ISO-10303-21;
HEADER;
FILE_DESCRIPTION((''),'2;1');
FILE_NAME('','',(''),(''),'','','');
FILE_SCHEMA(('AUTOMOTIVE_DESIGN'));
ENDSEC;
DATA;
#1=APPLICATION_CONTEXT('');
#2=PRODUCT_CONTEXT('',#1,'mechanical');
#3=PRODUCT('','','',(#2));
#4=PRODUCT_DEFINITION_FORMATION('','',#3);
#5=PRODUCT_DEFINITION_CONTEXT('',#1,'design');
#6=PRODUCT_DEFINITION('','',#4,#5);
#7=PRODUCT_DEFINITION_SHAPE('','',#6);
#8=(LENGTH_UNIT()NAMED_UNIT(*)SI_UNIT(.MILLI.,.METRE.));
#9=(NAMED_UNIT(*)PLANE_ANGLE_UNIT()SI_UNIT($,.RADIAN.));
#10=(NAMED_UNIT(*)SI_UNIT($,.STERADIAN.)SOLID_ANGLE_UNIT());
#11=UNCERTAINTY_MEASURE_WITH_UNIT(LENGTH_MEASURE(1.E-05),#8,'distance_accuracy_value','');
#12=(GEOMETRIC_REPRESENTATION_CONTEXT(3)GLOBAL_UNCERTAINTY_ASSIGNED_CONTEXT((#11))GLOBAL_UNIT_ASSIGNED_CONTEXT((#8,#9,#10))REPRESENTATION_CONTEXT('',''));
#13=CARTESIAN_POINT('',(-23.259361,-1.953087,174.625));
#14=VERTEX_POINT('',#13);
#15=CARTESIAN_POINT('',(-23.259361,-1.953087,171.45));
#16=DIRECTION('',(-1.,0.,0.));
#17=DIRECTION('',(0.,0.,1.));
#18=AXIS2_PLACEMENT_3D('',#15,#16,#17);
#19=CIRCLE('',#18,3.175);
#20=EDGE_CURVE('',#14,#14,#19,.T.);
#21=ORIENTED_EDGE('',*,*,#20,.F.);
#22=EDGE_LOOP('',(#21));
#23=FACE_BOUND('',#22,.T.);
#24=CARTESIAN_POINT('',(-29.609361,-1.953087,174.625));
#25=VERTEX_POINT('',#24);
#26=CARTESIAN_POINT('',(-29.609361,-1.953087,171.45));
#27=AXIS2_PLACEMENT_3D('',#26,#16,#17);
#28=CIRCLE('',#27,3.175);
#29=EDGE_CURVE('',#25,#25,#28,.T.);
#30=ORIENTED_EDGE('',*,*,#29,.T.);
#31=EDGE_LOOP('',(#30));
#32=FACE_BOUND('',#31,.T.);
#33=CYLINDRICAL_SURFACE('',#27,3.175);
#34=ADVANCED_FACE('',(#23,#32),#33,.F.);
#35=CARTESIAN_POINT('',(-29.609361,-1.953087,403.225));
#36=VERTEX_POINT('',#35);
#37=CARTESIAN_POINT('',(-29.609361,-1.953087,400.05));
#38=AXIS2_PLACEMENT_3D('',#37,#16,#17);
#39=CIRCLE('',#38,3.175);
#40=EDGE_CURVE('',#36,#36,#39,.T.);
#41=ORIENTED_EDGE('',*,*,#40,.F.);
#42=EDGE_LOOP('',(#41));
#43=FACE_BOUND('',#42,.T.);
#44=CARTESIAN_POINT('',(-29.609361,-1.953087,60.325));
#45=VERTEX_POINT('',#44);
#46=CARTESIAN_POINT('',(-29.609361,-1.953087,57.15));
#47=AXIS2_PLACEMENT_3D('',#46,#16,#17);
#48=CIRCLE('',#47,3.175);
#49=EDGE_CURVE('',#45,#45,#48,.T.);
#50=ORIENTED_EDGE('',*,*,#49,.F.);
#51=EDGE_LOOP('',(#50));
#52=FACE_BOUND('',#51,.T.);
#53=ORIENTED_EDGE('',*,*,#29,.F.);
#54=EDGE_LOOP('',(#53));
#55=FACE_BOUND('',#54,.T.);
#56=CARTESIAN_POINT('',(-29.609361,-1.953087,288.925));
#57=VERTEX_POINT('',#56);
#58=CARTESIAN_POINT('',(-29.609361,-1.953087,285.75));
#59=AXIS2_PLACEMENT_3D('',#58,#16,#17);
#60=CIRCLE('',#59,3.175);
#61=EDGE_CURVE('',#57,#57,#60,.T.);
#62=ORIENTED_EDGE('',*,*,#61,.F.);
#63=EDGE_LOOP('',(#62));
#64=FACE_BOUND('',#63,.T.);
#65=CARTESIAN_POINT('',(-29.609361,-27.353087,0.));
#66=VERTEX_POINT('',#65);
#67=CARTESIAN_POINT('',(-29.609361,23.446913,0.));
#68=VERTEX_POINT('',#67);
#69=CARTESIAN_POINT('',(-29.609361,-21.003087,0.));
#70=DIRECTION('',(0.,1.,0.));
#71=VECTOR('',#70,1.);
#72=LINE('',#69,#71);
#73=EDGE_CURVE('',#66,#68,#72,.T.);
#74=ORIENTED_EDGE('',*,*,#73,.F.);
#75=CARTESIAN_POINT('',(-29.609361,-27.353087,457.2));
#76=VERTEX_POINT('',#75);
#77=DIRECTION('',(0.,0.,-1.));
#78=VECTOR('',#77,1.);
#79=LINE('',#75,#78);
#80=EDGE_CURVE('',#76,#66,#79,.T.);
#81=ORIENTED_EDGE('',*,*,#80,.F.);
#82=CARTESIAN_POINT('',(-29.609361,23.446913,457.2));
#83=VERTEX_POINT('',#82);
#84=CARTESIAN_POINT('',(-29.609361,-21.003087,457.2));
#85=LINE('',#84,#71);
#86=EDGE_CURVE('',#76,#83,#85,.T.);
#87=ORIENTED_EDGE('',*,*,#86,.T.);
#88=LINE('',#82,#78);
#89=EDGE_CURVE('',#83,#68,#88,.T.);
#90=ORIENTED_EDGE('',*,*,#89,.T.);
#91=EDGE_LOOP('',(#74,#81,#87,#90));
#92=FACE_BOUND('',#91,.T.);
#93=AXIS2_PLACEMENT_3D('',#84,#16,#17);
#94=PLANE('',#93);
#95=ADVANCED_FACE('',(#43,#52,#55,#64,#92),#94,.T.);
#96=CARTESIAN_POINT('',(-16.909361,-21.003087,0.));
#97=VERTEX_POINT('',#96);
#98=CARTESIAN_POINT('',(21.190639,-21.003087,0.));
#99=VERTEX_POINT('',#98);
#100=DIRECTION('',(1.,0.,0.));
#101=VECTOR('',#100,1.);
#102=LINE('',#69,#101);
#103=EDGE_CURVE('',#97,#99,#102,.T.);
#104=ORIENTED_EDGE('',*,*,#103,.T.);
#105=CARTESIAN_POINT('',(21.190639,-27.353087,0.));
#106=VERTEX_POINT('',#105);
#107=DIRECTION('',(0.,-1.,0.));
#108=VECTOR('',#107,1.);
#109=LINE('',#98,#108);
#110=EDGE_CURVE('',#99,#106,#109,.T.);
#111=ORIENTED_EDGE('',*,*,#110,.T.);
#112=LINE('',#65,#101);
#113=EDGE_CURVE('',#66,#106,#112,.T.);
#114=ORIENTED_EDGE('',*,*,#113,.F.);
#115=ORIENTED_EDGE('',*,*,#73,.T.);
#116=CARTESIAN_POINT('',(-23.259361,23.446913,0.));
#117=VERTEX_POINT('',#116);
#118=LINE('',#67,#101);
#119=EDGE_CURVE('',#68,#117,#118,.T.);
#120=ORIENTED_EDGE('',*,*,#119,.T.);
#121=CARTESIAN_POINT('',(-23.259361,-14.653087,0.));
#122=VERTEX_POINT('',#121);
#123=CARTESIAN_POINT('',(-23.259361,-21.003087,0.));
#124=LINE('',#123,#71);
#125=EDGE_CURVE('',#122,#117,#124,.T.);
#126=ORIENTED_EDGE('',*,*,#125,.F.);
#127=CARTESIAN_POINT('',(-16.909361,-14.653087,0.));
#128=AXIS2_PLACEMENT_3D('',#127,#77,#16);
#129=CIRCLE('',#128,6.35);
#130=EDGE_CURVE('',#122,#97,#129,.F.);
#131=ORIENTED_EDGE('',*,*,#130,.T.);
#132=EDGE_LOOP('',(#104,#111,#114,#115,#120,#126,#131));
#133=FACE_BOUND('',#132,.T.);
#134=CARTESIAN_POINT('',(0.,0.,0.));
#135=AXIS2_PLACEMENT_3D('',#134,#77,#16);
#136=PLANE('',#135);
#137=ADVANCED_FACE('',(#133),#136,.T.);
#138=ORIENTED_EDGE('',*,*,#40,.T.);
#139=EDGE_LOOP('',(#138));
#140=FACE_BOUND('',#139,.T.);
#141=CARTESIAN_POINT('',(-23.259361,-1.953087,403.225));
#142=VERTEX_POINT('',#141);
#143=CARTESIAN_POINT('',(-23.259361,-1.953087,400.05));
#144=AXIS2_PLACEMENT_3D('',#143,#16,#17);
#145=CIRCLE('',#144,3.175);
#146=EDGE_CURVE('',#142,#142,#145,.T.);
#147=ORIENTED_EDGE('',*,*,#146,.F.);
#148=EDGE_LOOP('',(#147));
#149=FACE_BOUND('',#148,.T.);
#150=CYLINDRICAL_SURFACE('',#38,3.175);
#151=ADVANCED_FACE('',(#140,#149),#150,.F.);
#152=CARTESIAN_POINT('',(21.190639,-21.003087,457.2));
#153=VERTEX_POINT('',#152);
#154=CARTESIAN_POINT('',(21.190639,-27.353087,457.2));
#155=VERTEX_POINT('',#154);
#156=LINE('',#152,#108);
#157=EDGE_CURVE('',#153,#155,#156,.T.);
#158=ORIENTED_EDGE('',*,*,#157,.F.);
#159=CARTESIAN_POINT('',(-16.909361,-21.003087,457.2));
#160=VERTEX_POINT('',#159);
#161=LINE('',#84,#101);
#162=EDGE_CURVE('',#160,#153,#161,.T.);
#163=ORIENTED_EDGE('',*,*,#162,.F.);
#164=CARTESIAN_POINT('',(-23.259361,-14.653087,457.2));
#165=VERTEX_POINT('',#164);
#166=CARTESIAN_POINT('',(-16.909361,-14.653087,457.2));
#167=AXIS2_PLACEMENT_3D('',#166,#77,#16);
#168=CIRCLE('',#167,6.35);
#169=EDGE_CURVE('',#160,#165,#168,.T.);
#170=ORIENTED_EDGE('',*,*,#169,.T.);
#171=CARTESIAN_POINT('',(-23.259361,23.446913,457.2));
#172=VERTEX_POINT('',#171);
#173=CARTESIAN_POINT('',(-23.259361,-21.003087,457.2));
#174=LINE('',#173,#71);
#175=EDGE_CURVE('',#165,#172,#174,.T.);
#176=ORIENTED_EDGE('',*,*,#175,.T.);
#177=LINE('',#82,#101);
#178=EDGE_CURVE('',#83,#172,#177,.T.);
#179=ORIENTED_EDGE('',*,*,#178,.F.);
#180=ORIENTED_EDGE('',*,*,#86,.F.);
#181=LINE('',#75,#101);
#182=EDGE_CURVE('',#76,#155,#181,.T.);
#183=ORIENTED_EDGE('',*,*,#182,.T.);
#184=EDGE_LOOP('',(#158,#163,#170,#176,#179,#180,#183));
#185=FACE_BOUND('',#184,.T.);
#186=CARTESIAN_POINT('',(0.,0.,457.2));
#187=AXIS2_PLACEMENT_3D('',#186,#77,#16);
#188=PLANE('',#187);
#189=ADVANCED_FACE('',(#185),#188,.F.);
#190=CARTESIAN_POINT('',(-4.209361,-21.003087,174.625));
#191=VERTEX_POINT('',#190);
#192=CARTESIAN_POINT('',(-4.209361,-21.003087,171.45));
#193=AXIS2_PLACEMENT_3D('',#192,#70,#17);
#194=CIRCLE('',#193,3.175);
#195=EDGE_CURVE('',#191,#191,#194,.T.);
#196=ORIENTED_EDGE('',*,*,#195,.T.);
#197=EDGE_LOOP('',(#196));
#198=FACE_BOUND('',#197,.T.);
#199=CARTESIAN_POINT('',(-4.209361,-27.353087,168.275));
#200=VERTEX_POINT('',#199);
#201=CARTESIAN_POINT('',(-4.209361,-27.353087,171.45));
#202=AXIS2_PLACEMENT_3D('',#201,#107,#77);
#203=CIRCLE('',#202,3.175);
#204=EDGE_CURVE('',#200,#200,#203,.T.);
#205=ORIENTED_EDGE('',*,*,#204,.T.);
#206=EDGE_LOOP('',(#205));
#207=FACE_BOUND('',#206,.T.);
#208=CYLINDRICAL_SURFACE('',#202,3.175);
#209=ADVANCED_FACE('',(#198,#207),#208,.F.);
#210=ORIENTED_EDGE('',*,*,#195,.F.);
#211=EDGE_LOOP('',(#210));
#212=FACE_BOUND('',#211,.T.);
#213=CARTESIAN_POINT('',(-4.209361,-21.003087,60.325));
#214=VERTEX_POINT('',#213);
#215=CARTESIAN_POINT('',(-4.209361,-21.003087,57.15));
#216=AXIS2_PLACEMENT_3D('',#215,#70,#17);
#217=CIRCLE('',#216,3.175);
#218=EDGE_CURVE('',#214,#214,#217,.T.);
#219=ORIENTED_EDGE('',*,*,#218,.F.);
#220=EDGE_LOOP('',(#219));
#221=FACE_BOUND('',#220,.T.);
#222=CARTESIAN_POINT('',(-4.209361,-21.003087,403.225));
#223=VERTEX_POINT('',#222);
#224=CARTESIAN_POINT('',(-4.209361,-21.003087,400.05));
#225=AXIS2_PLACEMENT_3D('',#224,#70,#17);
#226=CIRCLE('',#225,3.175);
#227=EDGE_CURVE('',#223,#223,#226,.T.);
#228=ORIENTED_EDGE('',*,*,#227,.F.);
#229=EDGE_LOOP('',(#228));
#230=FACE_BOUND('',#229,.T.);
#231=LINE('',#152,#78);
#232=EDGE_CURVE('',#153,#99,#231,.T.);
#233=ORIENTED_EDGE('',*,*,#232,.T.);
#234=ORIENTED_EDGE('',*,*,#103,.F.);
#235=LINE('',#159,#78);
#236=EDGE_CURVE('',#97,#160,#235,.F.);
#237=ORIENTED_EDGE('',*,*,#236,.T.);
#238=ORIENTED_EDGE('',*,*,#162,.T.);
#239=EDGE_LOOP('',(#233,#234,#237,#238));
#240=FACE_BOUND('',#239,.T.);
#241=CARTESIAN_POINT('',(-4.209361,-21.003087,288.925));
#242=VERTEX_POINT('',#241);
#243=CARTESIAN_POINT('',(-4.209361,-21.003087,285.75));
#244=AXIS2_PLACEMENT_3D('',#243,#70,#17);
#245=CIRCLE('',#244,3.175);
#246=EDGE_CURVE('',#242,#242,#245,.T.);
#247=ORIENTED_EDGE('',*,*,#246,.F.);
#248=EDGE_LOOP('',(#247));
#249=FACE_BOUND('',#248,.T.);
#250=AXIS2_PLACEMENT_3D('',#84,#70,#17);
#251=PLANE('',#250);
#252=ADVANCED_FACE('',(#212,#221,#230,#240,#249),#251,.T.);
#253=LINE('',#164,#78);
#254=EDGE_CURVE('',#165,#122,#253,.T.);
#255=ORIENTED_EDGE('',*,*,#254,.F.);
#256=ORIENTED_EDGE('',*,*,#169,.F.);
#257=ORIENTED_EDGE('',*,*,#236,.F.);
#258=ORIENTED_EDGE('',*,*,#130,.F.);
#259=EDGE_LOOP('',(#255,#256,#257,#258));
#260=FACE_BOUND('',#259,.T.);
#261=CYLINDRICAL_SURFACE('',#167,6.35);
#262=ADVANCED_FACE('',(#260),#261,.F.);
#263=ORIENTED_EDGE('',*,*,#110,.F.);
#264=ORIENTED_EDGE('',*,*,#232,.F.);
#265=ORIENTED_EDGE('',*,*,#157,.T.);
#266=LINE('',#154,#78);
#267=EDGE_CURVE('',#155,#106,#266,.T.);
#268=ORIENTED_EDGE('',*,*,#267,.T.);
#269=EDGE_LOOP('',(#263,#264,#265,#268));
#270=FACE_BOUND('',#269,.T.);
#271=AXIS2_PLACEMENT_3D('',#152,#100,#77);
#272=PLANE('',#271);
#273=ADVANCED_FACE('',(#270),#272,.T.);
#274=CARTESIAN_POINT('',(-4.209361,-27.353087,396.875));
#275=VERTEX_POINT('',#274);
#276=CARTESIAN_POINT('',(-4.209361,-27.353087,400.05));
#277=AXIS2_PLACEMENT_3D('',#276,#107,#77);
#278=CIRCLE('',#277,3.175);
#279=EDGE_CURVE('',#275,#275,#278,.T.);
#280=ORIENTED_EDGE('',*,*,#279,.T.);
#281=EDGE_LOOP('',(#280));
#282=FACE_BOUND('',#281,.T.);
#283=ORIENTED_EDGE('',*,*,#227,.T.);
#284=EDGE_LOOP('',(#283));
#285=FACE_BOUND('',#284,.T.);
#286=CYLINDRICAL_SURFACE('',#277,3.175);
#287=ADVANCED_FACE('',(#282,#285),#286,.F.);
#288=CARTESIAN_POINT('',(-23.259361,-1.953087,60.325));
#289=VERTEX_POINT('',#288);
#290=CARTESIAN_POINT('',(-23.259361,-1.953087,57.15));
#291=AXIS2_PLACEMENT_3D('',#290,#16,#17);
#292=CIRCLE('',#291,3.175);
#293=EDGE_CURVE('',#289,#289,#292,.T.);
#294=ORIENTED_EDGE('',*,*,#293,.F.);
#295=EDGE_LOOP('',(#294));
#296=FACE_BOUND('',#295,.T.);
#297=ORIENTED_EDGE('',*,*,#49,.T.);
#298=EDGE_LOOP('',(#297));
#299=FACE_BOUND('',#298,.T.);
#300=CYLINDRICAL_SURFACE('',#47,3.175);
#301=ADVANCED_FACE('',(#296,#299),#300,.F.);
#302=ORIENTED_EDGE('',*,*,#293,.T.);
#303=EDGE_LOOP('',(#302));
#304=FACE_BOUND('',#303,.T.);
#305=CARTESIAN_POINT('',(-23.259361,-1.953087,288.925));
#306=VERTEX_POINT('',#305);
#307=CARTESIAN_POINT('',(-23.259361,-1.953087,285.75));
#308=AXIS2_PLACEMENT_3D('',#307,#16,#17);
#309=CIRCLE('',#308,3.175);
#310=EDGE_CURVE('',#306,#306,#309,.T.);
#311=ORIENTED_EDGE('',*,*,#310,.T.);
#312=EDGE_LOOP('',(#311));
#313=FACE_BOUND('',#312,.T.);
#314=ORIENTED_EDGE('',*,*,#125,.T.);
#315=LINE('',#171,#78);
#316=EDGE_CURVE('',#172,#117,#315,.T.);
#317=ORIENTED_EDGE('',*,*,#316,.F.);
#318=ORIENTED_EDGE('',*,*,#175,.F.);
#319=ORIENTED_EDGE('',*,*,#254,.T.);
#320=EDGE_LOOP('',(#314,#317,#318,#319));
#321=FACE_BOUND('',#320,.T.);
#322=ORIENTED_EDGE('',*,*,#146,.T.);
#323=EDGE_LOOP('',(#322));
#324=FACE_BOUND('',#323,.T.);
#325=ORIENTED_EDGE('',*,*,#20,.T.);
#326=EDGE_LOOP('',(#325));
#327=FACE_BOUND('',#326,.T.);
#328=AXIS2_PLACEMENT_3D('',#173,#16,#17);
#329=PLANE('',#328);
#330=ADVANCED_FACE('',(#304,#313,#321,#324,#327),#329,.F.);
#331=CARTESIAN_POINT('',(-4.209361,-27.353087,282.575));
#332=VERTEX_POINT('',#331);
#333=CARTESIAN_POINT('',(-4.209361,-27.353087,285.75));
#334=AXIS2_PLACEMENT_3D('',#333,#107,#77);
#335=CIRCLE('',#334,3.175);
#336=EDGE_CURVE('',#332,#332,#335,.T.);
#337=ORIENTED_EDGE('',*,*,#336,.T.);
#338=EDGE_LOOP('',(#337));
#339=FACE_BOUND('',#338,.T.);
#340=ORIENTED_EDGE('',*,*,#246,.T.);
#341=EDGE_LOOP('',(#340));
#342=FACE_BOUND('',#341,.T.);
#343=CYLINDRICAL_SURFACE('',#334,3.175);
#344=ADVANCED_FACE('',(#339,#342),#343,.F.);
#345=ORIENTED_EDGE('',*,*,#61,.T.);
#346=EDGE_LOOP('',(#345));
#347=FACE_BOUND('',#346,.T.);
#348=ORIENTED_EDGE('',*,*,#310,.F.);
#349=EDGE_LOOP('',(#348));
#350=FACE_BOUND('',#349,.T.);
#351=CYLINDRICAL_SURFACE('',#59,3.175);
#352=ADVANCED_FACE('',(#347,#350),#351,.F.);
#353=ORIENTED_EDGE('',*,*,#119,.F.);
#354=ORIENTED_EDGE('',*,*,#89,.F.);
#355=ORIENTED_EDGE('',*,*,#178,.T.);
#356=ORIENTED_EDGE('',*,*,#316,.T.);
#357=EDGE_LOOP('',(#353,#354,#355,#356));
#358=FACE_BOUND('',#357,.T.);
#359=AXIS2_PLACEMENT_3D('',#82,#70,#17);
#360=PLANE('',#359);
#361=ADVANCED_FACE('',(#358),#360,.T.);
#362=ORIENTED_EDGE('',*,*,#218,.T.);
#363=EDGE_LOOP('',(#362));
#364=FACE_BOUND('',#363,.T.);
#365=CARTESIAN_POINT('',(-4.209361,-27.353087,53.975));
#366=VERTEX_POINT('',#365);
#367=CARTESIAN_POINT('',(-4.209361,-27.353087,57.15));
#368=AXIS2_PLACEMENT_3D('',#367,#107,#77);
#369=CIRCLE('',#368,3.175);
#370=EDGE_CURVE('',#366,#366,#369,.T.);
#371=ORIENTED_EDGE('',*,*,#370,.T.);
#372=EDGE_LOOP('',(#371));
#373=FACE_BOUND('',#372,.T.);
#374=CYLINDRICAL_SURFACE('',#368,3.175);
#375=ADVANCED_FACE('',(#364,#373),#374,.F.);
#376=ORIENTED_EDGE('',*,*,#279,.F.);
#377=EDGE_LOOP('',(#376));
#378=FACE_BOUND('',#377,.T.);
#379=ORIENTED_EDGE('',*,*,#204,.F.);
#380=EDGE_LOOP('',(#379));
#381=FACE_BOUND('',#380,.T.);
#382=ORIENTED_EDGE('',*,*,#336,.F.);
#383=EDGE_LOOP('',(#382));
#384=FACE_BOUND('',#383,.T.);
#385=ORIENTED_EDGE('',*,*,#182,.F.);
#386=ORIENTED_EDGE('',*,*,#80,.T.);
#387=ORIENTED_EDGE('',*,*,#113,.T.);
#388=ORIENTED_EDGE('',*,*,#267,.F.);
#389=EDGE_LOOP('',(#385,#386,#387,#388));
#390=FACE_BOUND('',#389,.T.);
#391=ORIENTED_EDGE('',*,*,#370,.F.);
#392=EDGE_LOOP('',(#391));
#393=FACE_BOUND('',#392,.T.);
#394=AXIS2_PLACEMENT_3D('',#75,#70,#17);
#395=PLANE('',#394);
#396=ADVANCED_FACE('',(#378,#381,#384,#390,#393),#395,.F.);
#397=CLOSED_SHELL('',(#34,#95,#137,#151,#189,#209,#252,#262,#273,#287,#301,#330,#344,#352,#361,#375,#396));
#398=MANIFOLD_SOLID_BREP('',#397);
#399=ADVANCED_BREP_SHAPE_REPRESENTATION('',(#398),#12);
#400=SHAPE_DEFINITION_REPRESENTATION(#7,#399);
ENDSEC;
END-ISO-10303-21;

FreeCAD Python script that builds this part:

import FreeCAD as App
import Part
import Sketcher

V = App.Vector
Q = App.Units.Quantity


def edges_at(feature, points):
    """Names of the edges that pass closest to the given points."""
    edges = feature.Shape.Edges
    near = lambda p: min(range(len(edges)), key=lambda i: edges[i].distToShape(Part.Vertex(*p))[0])
    return sorted({f"Edge{near(p) + 1}" for p in points})

doc = App.newDocument("Part")
body = doc.addObject("PartDesign::Body", "Body")

# Sketch on XY plane
sketch1 = body.newObject("Sketcher::SketchObject", "Sketch")
sketch1.AttachmentSupport = (doc.getObject("XY_Plane"), [""])
sketch1.MapMode = "FlatFace"
sketch1.addGeometry([
    Part.LineSegment(V(-30, 23, 0), V(-30, -27, 0)),  # 0
    Part.LineSegment(V(-30, -27, 0), V(21, -27, 0)),  # 1
    Part.LineSegment(V(21, -27, 0), V(21, -21, 0)),  # 2
    Part.LineSegment(V(21, -21, 0), V(-23, -21, 0)),  # 3
    Part.LineSegment(V(-23, -21, 0), V(-23, 23, 0)),  # 4
    Part.LineSegment(V(-23, 23, 0), V(-30, 23, 0)),  # 5
], False)
sketch1.addConstraint([
    Sketcher.Constraint("Coincident", 0, 2, 1, 1),
    Sketcher.Constraint("Coincident", 1, 2, 2, 1),
    Sketcher.Constraint("Coincident", 2, 2, 3, 1),
    Sketcher.Constraint("Coincident", 3, 2, 4, 1),
    Sketcher.Constraint("Coincident", 4, 2, 5, 1),
    Sketcher.Constraint("Coincident", 5, 2, 0, 1),
    Sketcher.Constraint("Vertical", 0),
    Sketcher.Constraint("Horizontal", 1),
    Sketcher.Constraint("Vertical", 2),
    Sketcher.Constraint("Horizontal", 3),
    Sketcher.Constraint("Vertical", 4),
    Sketcher.Constraint("Horizontal", 5),
    Sketcher.Constraint("Equal", 1, 0),
    Sketcher.Constraint("Equal", 5, 2),
    Sketcher.Constraint("DistanceX", 1, 1, 1, 2, Q("2 in")),
    Sketcher.Constraint("DistanceX", 3, 2, 3, 1, Q("1.75 in")),
    Sketcher.Constraint("DistanceX", 0, 2, -1, 1, Q("29.609361 mm")),
    Sketcher.Constraint("DistanceY", 0, 2, -1, 1, Q("27.353087 mm")),
])
pad1 = body.newObject("PartDesign::Pad", "Pad")
pad1.Profile = sketch1
pad1.Length = Q("18 in")
doc.recompute()

fillet = body.newObject("PartDesign::Fillet", "Fillet")
fillet.Base = (pad1, edges_at(pad1, [(-23.259, -21.003, 228.6)]))
fillet.Radius = Q("0.25 in")

# Sketch on XZ plane
sketch2 = body.newObject("Sketcher::SketchObject", "Sketch001")
sketch2.AttachmentSupport = (doc.getObject("XZ_Plane"), [""])
sketch2.MapMode = "FlatFace"
sketch2.AttachmentOffset = App.Placement(V(0, 0, 27.353087), App.Rotation())
sketch2.addGeometry(Part.Circle(V(-4.2, 400.1, 0), V(0, 0, 1), 3.2), False)
sketch2.addConstraint([
    Sketcher.Constraint("Diameter", 0, Q("0.25 in")),
    Sketcher.Constraint("DistanceY", -1, 1, 0, 3, Q("15.75 in")),
    Sketcher.Constraint("DistanceX", 0, 3, -1, 1, Q("4.209361 mm")),
])
doc.recompute()
hole = body.newObject("PartDesign::Hole", "Hole")
hole.Profile = sketch2
hole.ThreadType = "None"
hole.Diameter = Q("0.25 in")
hole.DepthType = "ThroughAll"
doc.recompute()

linearpattern = body.newObject("PartDesign::LinearPattern", "LinearPattern")
linearpattern.Originals = [hole]
linearpattern.Direction = (doc.getObject("Z_Axis"), [""])
linearpattern.Mode = "offset"
linearpattern.Offset = Q("4.5 in")
linearpattern.Occurrences = 4
linearpattern.Reversed = True
body.Tip = linearpattern

# Sketch on YZ plane
sketch3 = body.newObject("Sketcher::SketchObject", "Sketch002")
sketch3.AttachmentSupport = (doc.getObject("YZ_Plane"), [""])
sketch3.MapMode = "FlatFace"
sketch3.AttachmentOffset = App.Placement(V(0, 0, -29.609361), App.Rotation())
sketch3.addGeometry(Part.Circle(V(-2, 400.1, 0), V(0, 0, 1), 3.2), False)
sketch3.addConstraint([
    Sketcher.Constraint("Diameter", 0, Q("0.25 in")),
    Sketcher.Constraint("DistanceY", -1, 1, 0, 3, Q("15.75 in")),
    Sketcher.Constraint("DistanceX", 0, 3, -1, 1, Q("1.953087 mm")),
])
doc.recompute()
hole2 = body.newObject("PartDesign::Hole", "Hole001")
hole2.Profile = sketch3
hole2.ThreadType = "None"
hole2.Diameter = Q("0.25 in")
hole2.DepthType = "ThroughAll"
hole2.Reversed = True
doc.recompute()

linearpattern2 = body.newObject("PartDesign::LinearPattern", "LinearPattern001")
linearpattern2.Originals = [hole2]
linearpattern2.Direction = (doc.getObject("Z_Axis"), [""])
linearpattern2.Mode = "offset"
linearpattern2.Offset = Q("4.5 in")
linearpattern2.Occurrences = 4
linearpattern2.Reversed = True
body.Tip = linearpattern2

doc.recompute()
